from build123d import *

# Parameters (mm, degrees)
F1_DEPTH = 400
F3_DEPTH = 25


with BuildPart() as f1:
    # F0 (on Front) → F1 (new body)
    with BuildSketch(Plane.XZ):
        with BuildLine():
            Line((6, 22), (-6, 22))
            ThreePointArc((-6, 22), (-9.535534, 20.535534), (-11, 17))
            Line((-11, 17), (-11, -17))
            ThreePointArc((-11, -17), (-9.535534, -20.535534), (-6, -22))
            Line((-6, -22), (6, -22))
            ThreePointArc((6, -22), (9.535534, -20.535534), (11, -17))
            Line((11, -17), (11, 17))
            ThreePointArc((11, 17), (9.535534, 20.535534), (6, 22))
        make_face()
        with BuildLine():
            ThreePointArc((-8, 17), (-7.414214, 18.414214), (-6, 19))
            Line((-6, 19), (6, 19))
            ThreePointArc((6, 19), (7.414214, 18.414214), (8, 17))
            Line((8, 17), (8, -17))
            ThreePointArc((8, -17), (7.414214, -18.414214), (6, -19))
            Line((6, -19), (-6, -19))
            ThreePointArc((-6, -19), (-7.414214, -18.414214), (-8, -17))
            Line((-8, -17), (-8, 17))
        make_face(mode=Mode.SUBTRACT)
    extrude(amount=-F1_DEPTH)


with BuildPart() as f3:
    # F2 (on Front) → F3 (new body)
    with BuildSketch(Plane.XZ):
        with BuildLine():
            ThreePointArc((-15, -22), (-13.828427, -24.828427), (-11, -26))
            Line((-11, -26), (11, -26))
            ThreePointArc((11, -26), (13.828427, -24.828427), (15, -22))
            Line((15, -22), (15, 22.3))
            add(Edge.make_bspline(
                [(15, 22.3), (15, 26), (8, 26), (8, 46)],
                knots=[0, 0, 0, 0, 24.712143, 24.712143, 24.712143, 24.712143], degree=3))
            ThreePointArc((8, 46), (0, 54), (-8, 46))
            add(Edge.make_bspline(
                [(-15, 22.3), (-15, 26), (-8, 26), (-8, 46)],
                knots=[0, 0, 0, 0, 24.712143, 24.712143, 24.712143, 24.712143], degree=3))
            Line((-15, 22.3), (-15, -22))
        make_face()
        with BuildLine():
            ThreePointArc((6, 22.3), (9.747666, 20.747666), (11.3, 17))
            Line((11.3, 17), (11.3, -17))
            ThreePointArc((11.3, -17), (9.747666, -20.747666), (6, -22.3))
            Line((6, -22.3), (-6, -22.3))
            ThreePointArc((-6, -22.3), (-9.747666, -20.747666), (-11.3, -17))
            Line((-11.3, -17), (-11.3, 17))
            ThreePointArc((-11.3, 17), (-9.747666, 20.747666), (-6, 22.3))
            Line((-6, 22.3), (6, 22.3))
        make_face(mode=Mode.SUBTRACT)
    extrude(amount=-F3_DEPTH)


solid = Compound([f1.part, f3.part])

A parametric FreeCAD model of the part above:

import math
import FreeCAD as App
import Part
import Sketcher
from FreeCAD import Vector

doc = App.newDocument("Part")
params = doc.addObject("Spreadsheet::Sheet", "Params")
for row, (alias, value) in enumerate([
    ("sketch1_radius", "5 mm"),
    ("sketch1_radius2", "1.999999 mm"),
    ("sketch1_width", "12 mm"),
    ("sketch1_height", "34 mm"),
    ("pad1_length", "400 mm"),
    ("sketch2_radius", "4 mm"),
    ("sketch2_radius2", "5.3 mm"),
    ("sketch2_width", "12 mm"),
    ("sketch2_height", "44.3 mm"),
    ("pad2_length", "25 mm"),
], start=1):
    params.set(f"A{row}", alias)
    params.set(f"B{row}", "=" + value)
    params.setAlias(f"B{row}", alias)

body = doc.addObject("PartDesign::Body", "Body")

sketch1 = doc.addObject("Sketcher::SketchObject", "Sketch")
body.addObject(sketch1)
sketch1.AttachmentSupport = (doc.XZ_Plane, [""])
sketch1.MapMode = "FlatFace"
sketch1.addGeometry(Part.LineSegment(Vector(6, 22, 0), Vector(-6, 22, 0)), False)
sketch1.addGeometry(Part.ArcOfCircle(Part.Circle(Vector(-6, 17, 0), Vector(0, 0, 1), 5), math.radians(90), math.radians(180)), False)
sketch1.addGeometry(Part.LineSegment(Vector(-11, 17, 0), Vector(-11, -17, 0)), False)
sketch1.addGeometry(Part.ArcOfCircle(Part.Circle(Vector(-6, -17, 0), Vector(0, 0, 1), 5), math.radians(180), math.radians(270)), False)
sketch1.addGeometry(Part.LineSegment(Vector(-6, -22, 0), Vector(6, -22, 0)), False)
sketch1.addGeometry(Part.ArcOfCircle(Part.Circle(Vector(6, -17, 0), Vector(0, 0, 1), 5), math.radians(-90), math.radians(0)), False)
sketch1.addGeometry(Part.LineSegment(Vector(11, -17, 0), Vector(11, 17, 0)), False)
sketch1.addGeometry(Part.ArcOfCircle(Part.Circle(Vector(6, 17, 0), Vector(0, 0, 1), 5), math.radians(0), math.radians(90)), False)
sketch1.addGeometry(Part.LineSegment(Vector(-8, -17, 0), Vector(-8, 17, 0)), False)
sketch1.addGeometry(Part.ArcOfCircle(Part.Circle(Vector(-6, 17, 0), Vector(0, 0, 1), 2), math.radians(90), math.radians(180)), False)
sketch1.addGeometry(Part.LineSegment(Vector(-6, 19, 0), Vector(6, 19, 0)), False)
sketch1.addGeometry(Part.ArcOfCircle(Part.Circle(Vector(6, 17, 0), Vector(0, 0, 1), 2), math.radians(0), math.radians(90)), False)
sketch1.addGeometry(Part.LineSegment(Vector(8, 17, 0), Vector(8, -17, 0)), False)
sketch1.addGeometry(Part.ArcOfCircle(Part.Circle(Vector(6, -17, 0), Vector(0, 0, 1), 2), math.radians(-90), math.radians(0)), False)
sketch1.addGeometry(Part.LineSegment(Vector(6, -19, 0), Vector(-6, -19, 0)), False)
sketch1.addGeometry(Part.ArcOfCircle(Part.Circle(Vector(-6, -17, 0), Vector(0, 0, 1), 2), math.radians(180), math.radians(270)), False)
sketch1.addConstraint(Sketcher.Constraint("Tangent", 0, 2, 1, 1))
sketch1.addConstraint(Sketcher.Constraint("Tangent", 1, 2, 2, 1))
sketch1.addConstraint(Sketcher.Constraint("Tangent", 2, 2, 3, 1))
sketch1.addConstraint(Sketcher.Constraint("Tangent", 3, 2, 4, 1))
sketch1.addConstraint(Sketcher.Constraint("Tangent", 4, 2, 5, 1))
sketch1.addConstraint(Sketcher.Constraint("Tangent", 5, 2, 6, 1))
sketch1.addConstraint(Sketcher.Constraint("Tangent", 6, 2, 7, 1))
sketch1.addConstraint(Sketcher.Constraint("Tangent", 7, 2, 0, 1))
sketch1.addConstraint(Sketcher.Constraint("Tangent", 8, 2, 9, 2))
sketch1.addConstraint(Sketcher.Constraint("Tangent", 9, 1, 10, 1))
sketch1.addConstraint(Sketcher.Constraint("Tangent", 10, 2, 11, 2))
sketch1.addConstraint(Sketcher.Constraint("Tangent", 11, 1, 12, 1))
sketch1.addConstraint(Sketcher.Constraint("Tangent", 12, 2, 13, 2))
sketch1.addConstraint(Sketcher.Constraint("Tangent", 13, 1, 14, 1))
sketch1.addConstraint(Sketcher.Constraint("Tangent", 14, 2, 15, 2))
sketch1.addConstraint(Sketcher.Constraint("Tangent", 15, 1, 8, 1))
sketch1.addConstraint(Sketcher.Constraint("Horizontal", 0))
sketch1.addConstraint(Sketcher.Constraint("Vertical", 2))
sketch1.addConstraint(Sketcher.Constraint("Horizontal", 4))
sketch1.addConstraint(Sketcher.Constraint("Vertical", 6))
sketch1.addConstraint(Sketcher.Constraint("Vertical", 8))
sketch1.addConstraint(Sketcher.Constraint("Horizontal", 10))
sketch1.addConstraint(Sketcher.Constraint("Vertical", 12))
sketch1.addConstraint(Sketcher.Constraint("Horizontal", 14))
sketch1.addConstraint(Sketcher.Constraint("Coincident", 9, 3, 1, 3))
sketch1.addConstraint(Sketcher.Constraint("Coincident", 11, 3, 7, 3))
sketch1.addConstraint(Sketcher.Constraint("Coincident", 13, 3, 5, 3))
sketch1.addConstraint(Sketcher.Constraint("Equal", 1, 3))
sketch1.addConstraint(Sketcher.Constraint("Equal", 3, 5))
sketch1.addConstraint(Sketcher.Constraint("Equal", 5, 7))
sketch1.addConstraint(Sketcher.Constraint("Equal", 13, 15))
sketch1.addConstraint(Sketcher.Constraint("Symmetric", 1, 3, 5, 3, -1, 1))
sketch1.addConstraint(Sketcher.Constraint("Radius", 1, 5.0))
sketch1.addConstraint(Sketcher.Constraint("Radius", 9, 1.999999))
sketch1.addConstraint(Sketcher.Constraint("DistanceX", 0, 2, 0, 1, 12.0))
sketch1.addConstraint(Sketcher.Constraint("DistanceY", 2, 2, 2, 1, 34.0))
sketch1.setExpression("Constraints[32]", "Params.sketch1_radius")
sketch1.setExpression("Constraints[33]", "Params.sketch1_radius2")
sketch1.setExpression("Constraints[34]", "Params.sketch1_width")
sketch1.setExpression("Constraints[35]", "Params.sketch1_height")
pad1 = doc.addObject("PartDesign::Pad", "Pad")
body.addObject(pad1)
pad1.Profile = sketch1
pad1.setExpression("Length", "Params.pad1_length")
pad1.Reversed = True
body2 = doc.addObject("PartDesign::Body", "Body001")

sketch2 = doc.addObject("Sketcher::SketchObject", "Sketch001")
body2.addObject(sketch2)
sketch2.AttachmentSupport = (doc.getObject("XZ_Plane001"), [""])
sketch2.MapMode = "FlatFace"
sketch2.addGeometry(Part.ArcOfCircle(Part.Circle(Vector(-11, -22, 0), Vector(0, 0, 1), 4), math.radians(-179.999994), math.radians(-90.000006)), False)
sketch2.addGeometry(Part.LineSegment(Vector(-11, -26, 0), Vector(11, -26, 0)), False)
sketch2.addGeometry(Part.ArcOfCircle(Part.Circle(Vector(11, -22, 0), Vector(0, 0, 1), 4), math.radians(-89.999994), math.radians(-0.000006)), False)
sketch2.addGeometry(Part.LineSegment(Vector(15, -22, 0), Vector(15, 22.3, 0)), False)
sketch2.addGeometry(Part.BSplineCurve([Vector(15, 22.3, 0), Vector(15, 26, 0), Vector(8, 26, 0), Vector(8, 46, 0)], [4, 4], [0, 24.712143], False, 3, [1, 1, 1, 1], False), False)
sketch2.addGeometry(Part.ArcOfCircle(Part.Circle(Vector(0, 46, 0), Vector(0, 0, 1), 8), math.radians(0), math.radians(180)), False)
sketch2.addGeometry(Part.BSplineCurve([Vector(-15, 22.3, 0), Vector(-15, 26, 0), Vector(-8, 26, 0), Vector(-8, 46, 0)], [4, 4], [0, 24.712143], False, 3, [1, 1, 1, 1], False), False)
sketch2.addGeometry(Part.LineSegment(Vector(-15, 22.3, 0), Vector(-15, -22, 0)), False)
sketch2.addGeometry(Part.LineSegment(Vector(-6, 22.3, 0), Vector(6, 22.3, 0)), False)
sketch2.addGeometry(Part.ArcOfCircle(Part.Circle(Vector(6, 17, 0), Vector(0, 0, 1), 5.3), math.radians(-0.000002), math.radians(90.000002)), False)
sketch2.addGeometry(Part.LineSegment(Vector(11.3, 17, 0), Vector(11.3, -17, 0)), False)
sketch2.addGeometry(Part.ArcOfCircle(Part.Circle(Vector(6, -17, 0), Vector(0, 0, 1), 5.3), math.radians(-90.000002), math.radians(0.000002)), False)
sketch2.addGeometry(Part.LineSegment(Vector(6, -22.3, 0), Vector(-6, -22.3, 0)), False)
sketch2.addGeometry(Part.ArcOfCircle(Part.Circle(Vector(-6, -17, 0), Vector(0, 0, 1), 5.3), math.radians(179.999998), math.radians(270.000002)), False)
sketch2.addGeometry(Part.LineSegment(Vector(-11.3, -17, 0), Vector(-11.3, 17, 0)), False)
sketch2.addGeometry(Part.ArcOfCircle(Part.Circle(Vector(-6, 17, 0), Vector(0, 0, 1), 5.3), math.radians(89.999998), math.radians(180.000002)), False)
sketch2.addConstraint(Sketcher.Constraint("Block", 4))
sketch2.addConstraint(Sketcher.Constraint("Block", 6))
sketch2.addConstraint(Sketcher.Constraint("Tangent", 0, 2, 1, 1))
sketch2.addConstraint(Sketcher.Constraint("Tangent", 1, 2, 2, 1))
sketch2.addConstraint(Sketcher.Constraint("Tangent", 2, 2, 3, 1))
sketch2.addConstraint(Sketcher.Constraint("Coincident", 3, 2, 4, 1))
sketch2.addConstraint(Sketcher.Constraint("Coincident", 4, 2, 5, 1))
sketch2.addConstraint(Sketcher.Constraint("Coincident", 5, 2, 6, 2))
sketch2.addConstraint(Sketcher.Constraint("Coincident", 6, 1, 7, 1))
sketch2.addConstraint(Sketcher.Constraint("Tangent", 7, 2, 0, 1))
sketch2.addConstraint(Sketcher.Constraint("Tangent", 8, 2, 9, 2))
sketch2.addConstraint(Sketcher.Constraint("Tangent", 9, 1, 10, 1))
sketch2.addConstraint(Sketcher.Constraint("Tangent", 10, 2, 11, 2))
sketch2.addConstraint(Sketcher.Constraint("Tangent", 11, 1, 12, 1))
sketch2.addConstraint(Sketcher.Constraint("Tangent", 12, 2, 13, 2))
sketch2.addConstraint(Sketcher.Constraint("Tangent", 13, 1, 14, 1))
sketch2.addConstraint(Sketcher.Constraint("Tangent", 14, 2, 15, 2))
sketch2.addConstraint(Sketcher.Constraint("Tangent", 15, 1, 8, 1))
sketch2.addConstraint(Sketcher.Constraint("Horizontal", 1))
sketch2.addConstraint(Sketcher.Constraint("Vertical", 3))
sketch2.addConstraint(Sketcher.Constraint("Vertical", 7))
sketch2.addConstraint(Sketcher.Constraint("Horizontal", 8))
sketch2.addConstraint(Sketcher.Constraint("Vertical", 10))
sketch2.addConstraint(Sketcher.Constraint("Horizontal", 12))
sketch2.addConstraint(Sketcher.Constraint("Vertical", 14))
sketch2.addConstraint(Sketcher.Constraint("Equal", 0, 2))
sketch2.addConstraint(Sketcher.Constraint("Equal", 9, 11))
sketch2.addConstraint(Sketcher.Constraint("Equal", 11, 13))
sketch2.addConstraint(Sketcher.Constraint("Equal", 13, 15))
sketch2.addConstraint(Sketcher.Constraint("Symmetric", 9, 3, 13, 3, -1, 1))
sketch2.addConstraint(Sketcher.Constraint("Horizontal", 3, 2, 8, 2))
sketch2.addConstraint(Sketcher.Constraint("Radius", 0, 4.0))
sketch2.addConstraint(Sketcher.Constraint("Radius", 9, 5.3))
sketch2.addConstraint(Sketcher.Constraint("DistanceX", 8, 1, 8, 2, 12.0))
sketch2.addConstraint(Sketcher.Constraint("DistanceY", 3, 1, 3, 2, 44.3))
sketch2.addConstraint(Sketcher.Constraint("DistanceY", -1, 1, 5, 3, 46.0))
sketch2.setExpression("Constraints[31]", "Params.sketch2_radius")
sketch2.setExpression("Constraints[32]", "Params.sketch2_radius2")
sketch2.setExpression("Constraints[33]", "Params.sketch2_width")
sketch2.setExpression("Constraints[34]", "Params.sketch2_height")
pad2 = doc.addObject("PartDesign::Pad", "Pad001")
body2.addObject(pad2)
pad2.Profile = sketch2
pad2.setExpression("Length", "Params.pad2_length")
pad2.Reversed = True

doc.recompute()
